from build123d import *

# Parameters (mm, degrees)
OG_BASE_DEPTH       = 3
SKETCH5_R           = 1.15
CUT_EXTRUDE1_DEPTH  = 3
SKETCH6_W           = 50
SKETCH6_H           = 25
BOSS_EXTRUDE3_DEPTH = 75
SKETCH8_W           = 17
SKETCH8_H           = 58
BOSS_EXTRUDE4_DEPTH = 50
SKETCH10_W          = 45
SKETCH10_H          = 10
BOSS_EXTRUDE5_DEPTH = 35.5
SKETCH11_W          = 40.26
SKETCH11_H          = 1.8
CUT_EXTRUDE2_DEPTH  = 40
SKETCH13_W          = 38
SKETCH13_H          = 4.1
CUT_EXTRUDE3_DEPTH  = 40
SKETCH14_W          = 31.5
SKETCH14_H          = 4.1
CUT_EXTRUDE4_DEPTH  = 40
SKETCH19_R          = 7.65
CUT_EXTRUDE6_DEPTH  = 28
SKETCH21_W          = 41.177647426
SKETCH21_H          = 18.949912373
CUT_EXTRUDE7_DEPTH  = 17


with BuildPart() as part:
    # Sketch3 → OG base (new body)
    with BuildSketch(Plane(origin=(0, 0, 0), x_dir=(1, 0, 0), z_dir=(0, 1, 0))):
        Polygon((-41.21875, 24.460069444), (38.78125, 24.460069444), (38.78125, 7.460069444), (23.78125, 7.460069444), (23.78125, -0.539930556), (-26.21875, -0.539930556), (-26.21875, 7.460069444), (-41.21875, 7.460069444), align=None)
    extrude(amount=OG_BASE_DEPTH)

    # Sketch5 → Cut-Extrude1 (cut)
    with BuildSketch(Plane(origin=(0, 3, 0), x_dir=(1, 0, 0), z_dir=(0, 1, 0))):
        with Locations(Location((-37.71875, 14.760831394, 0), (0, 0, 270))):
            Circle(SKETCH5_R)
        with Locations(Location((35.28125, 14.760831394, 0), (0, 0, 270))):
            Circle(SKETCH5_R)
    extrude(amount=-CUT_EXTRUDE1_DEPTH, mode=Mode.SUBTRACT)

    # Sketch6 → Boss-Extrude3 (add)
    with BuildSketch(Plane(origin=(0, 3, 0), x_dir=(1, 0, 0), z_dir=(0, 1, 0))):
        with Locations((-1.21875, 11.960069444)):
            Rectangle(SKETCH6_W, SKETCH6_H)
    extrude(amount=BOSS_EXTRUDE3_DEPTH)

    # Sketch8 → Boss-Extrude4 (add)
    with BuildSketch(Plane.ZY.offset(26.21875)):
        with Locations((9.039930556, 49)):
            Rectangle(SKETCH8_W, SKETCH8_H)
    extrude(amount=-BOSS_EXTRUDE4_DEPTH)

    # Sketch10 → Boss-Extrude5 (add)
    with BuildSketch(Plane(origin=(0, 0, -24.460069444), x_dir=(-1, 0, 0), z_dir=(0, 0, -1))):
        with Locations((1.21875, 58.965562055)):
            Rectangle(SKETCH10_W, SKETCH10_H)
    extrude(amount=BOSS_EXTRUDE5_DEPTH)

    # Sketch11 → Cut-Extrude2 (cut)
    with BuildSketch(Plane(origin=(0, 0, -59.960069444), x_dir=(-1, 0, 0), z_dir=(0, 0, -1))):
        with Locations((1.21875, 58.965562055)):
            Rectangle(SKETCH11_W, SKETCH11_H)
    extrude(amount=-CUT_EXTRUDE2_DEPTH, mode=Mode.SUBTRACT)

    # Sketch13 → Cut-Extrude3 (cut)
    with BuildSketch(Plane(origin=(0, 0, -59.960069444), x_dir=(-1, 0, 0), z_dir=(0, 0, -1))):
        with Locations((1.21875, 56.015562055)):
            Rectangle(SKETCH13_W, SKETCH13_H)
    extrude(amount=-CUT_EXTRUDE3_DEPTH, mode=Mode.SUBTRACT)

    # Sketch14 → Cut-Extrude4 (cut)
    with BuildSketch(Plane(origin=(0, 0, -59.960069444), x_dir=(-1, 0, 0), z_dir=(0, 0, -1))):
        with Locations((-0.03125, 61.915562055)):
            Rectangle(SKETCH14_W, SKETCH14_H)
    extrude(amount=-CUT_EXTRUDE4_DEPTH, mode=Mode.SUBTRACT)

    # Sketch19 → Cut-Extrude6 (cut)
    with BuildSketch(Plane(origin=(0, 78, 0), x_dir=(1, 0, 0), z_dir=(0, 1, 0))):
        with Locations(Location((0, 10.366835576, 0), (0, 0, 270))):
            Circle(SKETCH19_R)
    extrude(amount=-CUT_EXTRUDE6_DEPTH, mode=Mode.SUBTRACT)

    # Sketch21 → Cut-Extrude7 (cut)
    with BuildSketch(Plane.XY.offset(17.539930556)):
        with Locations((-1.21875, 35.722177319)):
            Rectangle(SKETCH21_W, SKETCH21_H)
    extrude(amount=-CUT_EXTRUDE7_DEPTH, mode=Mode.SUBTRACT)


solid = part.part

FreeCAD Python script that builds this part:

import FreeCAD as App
import Part
import Sketcher


def add_polygon(sketch, points):
    """Adds a closed chain of lines whose ends are joined by coincident constraints."""
    first, n = sketch.GeometryCount, len(points)
    for a, b in zip(points, points[1:] + points[:1]):
        sketch.addGeometry(Part.LineSegment(App.Vector(*a, 0), App.Vector(*b, 0)), False)
    for i in range(n):
        sketch.addConstraint(Sketcher.Constraint("Coincident", first + i, 2, first + (i + 1) % n, 1))

doc = App.newDocument("Part")
body = doc.addObject("PartDesign::Body", "Body")

sketch1 = body.newObject("Sketcher::SketchObject", "Sketch")
sketch1.AttachmentSupport = (doc.getObject("XZ_Plane"), [""])
sketch1.MapMode = "FlatFace"
add_polygon(sketch1, [(39, -24), (-41, -24), (-41, -7), (-26, -7), (-26, 1), (24, 1), (24, -7), (39, -7)])
sketch1.addConstraint([
    Sketcher.Constraint("Horizontal", 0),
    Sketcher.Constraint("Vertical", 1),
    Sketcher.Constraint("Horizontal", 2),
    Sketcher.Constraint("Vertical", 3),
    Sketcher.Constraint("Horizontal", 4),
    Sketcher.Constraint("Vertical", 5),
    Sketcher.Constraint("Horizontal", 6),
    Sketcher.Constraint("Vertical", 7),
    Sketcher.Constraint("Horizontal", 2, 2, 5, 2),
    Sketcher.Constraint("Equal", 2, 6),
    Sketcher.Constraint("DistanceX", 0, 2, 0, 1, 80.0),
    Sketcher.Constraint("DistanceX", 2, 1, 2, 2, 15.0),
    Sketcher.Constraint("DistanceY", 1, 1, 1, 2, 17.0),
    Sketcher.Constraint("DistanceY", 3, 1, 3, 2, 8.0),
    Sketcher.Constraint("DistanceX", 0, 2, -1, 1, 41.21875),
    Sketcher.Constraint("DistanceY", 0, 2, -1, 1, 24.460069),
])
pad1 = body.newObject("PartDesign::Pad", "Pad")
pad1.Profile = sketch1
pad1.Length = 3
pad1.Reversed = True

sketch2 = body.newObject("Sketcher::SketchObject", "Sketch001")
sketch2.AttachmentSupport = (doc.getObject("XZ_Plane"), [""])
sketch2.MapMode = "FlatFace"
sketch2.AttachmentOffset = App.Placement(App.Vector(0, 0, -3), App.Rotation())
sketch2.addGeometry([
    Part.Circle(App.Vector(-37.7, -14.8, 0), App.Vector(0, 0, 1), 1.1),
    Part.Circle(App.Vector(35.3, -14.8, 0), App.Vector(0, 0, 1), 1.1),
], False)
sketch2.addConstraint([
    Sketcher.Constraint("Equal", 0, 1),
    Sketcher.Constraint("Horizontal", 0, 3, 1, 3),
    Sketcher.Constraint("Diameter", 0, 2.3),
    Sketcher.Constraint("DistanceX", 0, 3, 1, 3, 73.0),
    Sketcher.Constraint("DistanceX", 0, 3, -1, 1, 37.71875),
    Sketcher.Constraint("DistanceY", 0, 3, -1, 1, 14.760831),
])
pocket1 = body.newObject("PartDesign::Pocket", "Pocket")
pocket1.Profile = sketch2
pocket1.Length = 3
pocket1.Reversed = True

sketch3 = body.newObject("Sketcher::SketchObject", "Sketch002")
sketch3.AttachmentSupport = (doc.getObject("XZ_Plane"), [""])
sketch3.MapMode = "FlatFace"
sketch3.AttachmentOffset = App.Placement(App.Vector(0, 0, -3), App.Rotation())
add_polygon(sketch3, [(-26, -24), (-26, 1), (24, 1), (24, -24)])
sketch3.addConstraint([
    Sketcher.Constraint("Vertical", 0),
    Sketcher.Constraint("Horizontal", 1),
    Sketcher.Constraint("Vertical", 2),
    Sketcher.Constraint("Horizontal", 3),
    Sketcher.Constraint("DistanceX", 1, 1, 1, 2, 50.0),
    Sketcher.Constraint("DistanceY", 0, 1, 0, 2, 25.0),
    Sketcher.Constraint("DistanceX", 0, 2, -1, 1, 26.21875),
    Sketcher.Constraint("DistanceY", -1, 1, 0, 2, 0.539931),
])
pad2 = body.newObject("PartDesign::Pad", "Pad001")
pad2.Profile = sketch3
pad2.Length = 75
pad2.Reversed = True

sketch4 = body.newObject("Sketcher::SketchObject", "Sketch003")
sketch4.AttachmentSupport = (doc.getObject("YZ_Plane"), [""])
sketch4.MapMode = "FlatFace"
sketch4.AttachmentOffset = App.Placement(App.Vector(0, 0, -26.21875), App.Rotation())
add_polygon(sketch4, [(78, 1), (20, 1), (20, 18), (78, 18)])
sketch4.addConstraint([
    Sketcher.Constraint("Horizontal", 0),
    Sketcher.Constraint("Vertical", 1),
    Sketcher.Constraint("Horizontal", 2),
    Sketcher.Constraint("Vertical", 3),
    Sketcher.Constraint("DistanceX", 0, 2, 0, 1, 58.0),
    Sketcher.Constraint("DistanceY", 1, 1, 1, 2, 17.0),
    Sketcher.Constraint("DistanceX", -1, 1, 0, 2, 20.0),
    Sketcher.Constraint("DistanceY", -1, 1, 0, 2, 0.539931),
])
pad3 = body.newObject("PartDesign::Pad", "Pad002")
pad3.Profile = sketch4
pad3.Length = 50

sketch5 = body.newObject("Sketcher::SketchObject", "Sketch004")
sketch5.AttachmentSupport = (doc.getObject("XY_Plane"), [""])
sketch5.MapMode = "FlatFace"
sketch5.AttachmentOffset = App.Placement(App.Vector(0, 0, -24.460069), App.Rotation())
add_polygon(sketch5, [(21, 64), (21, 54), (-24, 54), (-24, 64)])
sketch5.addConstraint([
    Sketcher.Constraint("Vertical", 0),
    Sketcher.Constraint("Horizontal", 1),
    Sketcher.Constraint("Vertical", 2),
    Sketcher.Constraint("Horizontal", 3),
    Sketcher.Constraint("DistanceX", 1, 2, 1, 1, 45.0),
    Sketcher.Constraint("DistanceY", 0, 2, 0, 1, 10.0),
    Sketcher.Constraint("DistanceX", -1, 1, 0, 2, 21.28125),
    Sketcher.Constraint("DistanceY", -1, 1, 0, 2, 53.965562),
])
pad4 = body.newObject("PartDesign::Pad", "Pad003")
pad4.Profile = sketch5
pad4.Length = 35.5
pad4.Reversed = True

sketch6 = body.newObject("Sketcher::SketchObject", "Sketch005")
sketch6.AttachmentSupport = (doc.getObject("XY_Plane"), [""])
sketch6.MapMode = "FlatFace"
sketch6.AttachmentOffset = App.Placement(App.Vector(0, 0, -59.960069), App.Rotation())
add_polygon(sketch6, [(18.9, 59.9), (18.9, 58.1), (-21.3, 58.1), (-21.3, 59.9)])
sketch6.addConstraint([
    Sketcher.Constraint("Vertical", 0),
    Sketcher.Constraint("Horizontal", 1),
    Sketcher.Constraint("Vertical", 2),
    Sketcher.Constraint("Horizontal", 3),
    Sketcher.Constraint("DistanceY", 0, 2, 0, 1, 1.8),
    Sketcher.Constraint("DistanceX", 1, 2, 1, 1, 40.26),
    Sketcher.Constraint("DistanceX", -1, 1, 0, 2, 18.91125),
    Sketcher.Constraint("DistanceY", -1, 1, 0, 2, 58.065562),
])
pocket2 = body.newObject("PartDesign::Pocket", "Pocket001")
pocket2.Profile = sketch6
pocket2.Length = 40
pocket2.Reversed = True

sketch7 = body.newObject("Sketcher::SketchObject", "Sketch006")
sketch7.AttachmentSupport = (doc.getObject("XY_Plane"), [""])
sketch7.MapMode = "FlatFace"
sketch7.AttachmentOffset = App.Placement(App.Vector(0, 0, -59.960069), App.Rotation())
add_polygon(sketch7, [(17.8, 58.1), (17.8, 54), (-20.2, 54), (-20.2, 58.1)])
sketch7.addConstraint([
    Sketcher.Constraint("Vertical", 0),
    Sketcher.Constraint("Horizontal", 1),
    Sketcher.Constraint("Vertical", 2),
    Sketcher.Constraint("Horizontal", 3),
    Sketcher.Constraint("DistanceX", 1, 2, 1, 1, 38.0),
    Sketcher.Constraint("DistanceY", 0, 2, 0, 1, 4.1),
    Sketcher.Constraint("DistanceX", -1, 1, 0, 2, 17.78125),
    Sketcher.Constraint("DistanceY", -1, 1, 0, 2, 53.965562),
])
pocket3 = body.newObject("PartDesign::Pocket", "Pocket002")
pocket3.Profile = sketch7
pocket3.Length = 40
pocket3.Reversed = True

sketch8 = body.newObject("Sketcher::SketchObject", "Sketch007")
sketch8.AttachmentSupport = (doc.getObject("XY_Plane"), [""])
sketch8.MapMode = "FlatFace"
sketch8.AttachmentOffset = App.Placement(App.Vector(0, 0, -59.960069), App.Rotation())
add_polygon(sketch8, [(15.8, 64), (15.8, 59.9), (-15.7, 59.9), (-15.7, 64)])
sketch8.addConstraint([
    Sketcher.Constraint("Vertical", 0),
    Sketcher.Constraint("Horizontal", 1),
    Sketcher.Constraint("Vertical", 2),
    Sketcher.Constraint("Horizontal", 3),
    Sketcher.Constraint("DistanceX", 1, 2, 1, 1, 31.5),
    Sketcher.Constraint("DistanceY", 0, 2, 0, 1, 4.1),
    Sketcher.Constraint("DistanceX", -1, 1, 0, 2, 15.78125),
    Sketcher.Constraint("DistanceY", -1, 1, 0, 2, 59.865562),
])
pocket4 = body.newObject("PartDesign::Pocket", "Pocket003")
pocket4.Profile = sketch8
pocket4.Length = 40
pocket4.Reversed = True

sketch9 = body.newObject("Sketcher::SketchObject", "Sketch008")
sketch9.AttachmentSupport = (doc.getObject("XZ_Plane"), [""])
sketch9.MapMode = "FlatFace"
sketch9.AttachmentOffset = App.Placement(App.Vector(0, 0, -78), App.Rotation())
sketch9.addGeometry(Part.Circle(App.Vector(0, -10, 0), App.Vector(0, 0, 1), 8), False)
sketch9.addConstraint([
    Sketcher.Constraint("PointOnObject", 0, 3, -2),
    Sketcher.Constraint("Diameter", 0, 15.3),
    Sketcher.Constraint("DistanceY", 0, 3, -1, 1, 10.366836),
])
pocket5 = body.newObject("PartDesign::Pocket", "Pocket004")
pocket5.Profile = sketch9
pocket5.Length = 28
pocket5.Reversed = True

sketch10 = body.newObject("Sketcher::SketchObject", "Sketch009")
sketch10.AttachmentSupport = (doc.getObject("XY_Plane"), [""])
sketch10.MapMode = "FlatFace"
sketch10.AttachmentOffset = App.Placement(App.Vector(0, 0, 17.539931), App.Rotation())
add_polygon(sketch10, [(-22, 45), (-22, 26), (19, 26), (19, 45)])
sketch10.addConstraint([
    Sketcher.Constraint("Vertical", 0),
    Sketcher.Constraint("Horizontal", 1),
    Sketcher.Constraint("Vertical", 2),
    Sketcher.Constraint("Horizontal", 3),
    Sketcher.Constraint("DistanceX", 1, 1, 1, 2, 41.177647),
    Sketcher.Constraint("DistanceY", 0, 2, 0, 1, 18.949912),
    Sketcher.Constraint("DistanceY", -1, 1, 0, 2, 26.247221),
    Sketcher.Constraint("DistanceX", 0, 2, -1, 1, 21.807574),
])
pocket6 = body.newObject("PartDesign::Pocket", "Pocket005")
pocket6.Profile = sketch10
pocket6.Length = 17

doc.recompute()
